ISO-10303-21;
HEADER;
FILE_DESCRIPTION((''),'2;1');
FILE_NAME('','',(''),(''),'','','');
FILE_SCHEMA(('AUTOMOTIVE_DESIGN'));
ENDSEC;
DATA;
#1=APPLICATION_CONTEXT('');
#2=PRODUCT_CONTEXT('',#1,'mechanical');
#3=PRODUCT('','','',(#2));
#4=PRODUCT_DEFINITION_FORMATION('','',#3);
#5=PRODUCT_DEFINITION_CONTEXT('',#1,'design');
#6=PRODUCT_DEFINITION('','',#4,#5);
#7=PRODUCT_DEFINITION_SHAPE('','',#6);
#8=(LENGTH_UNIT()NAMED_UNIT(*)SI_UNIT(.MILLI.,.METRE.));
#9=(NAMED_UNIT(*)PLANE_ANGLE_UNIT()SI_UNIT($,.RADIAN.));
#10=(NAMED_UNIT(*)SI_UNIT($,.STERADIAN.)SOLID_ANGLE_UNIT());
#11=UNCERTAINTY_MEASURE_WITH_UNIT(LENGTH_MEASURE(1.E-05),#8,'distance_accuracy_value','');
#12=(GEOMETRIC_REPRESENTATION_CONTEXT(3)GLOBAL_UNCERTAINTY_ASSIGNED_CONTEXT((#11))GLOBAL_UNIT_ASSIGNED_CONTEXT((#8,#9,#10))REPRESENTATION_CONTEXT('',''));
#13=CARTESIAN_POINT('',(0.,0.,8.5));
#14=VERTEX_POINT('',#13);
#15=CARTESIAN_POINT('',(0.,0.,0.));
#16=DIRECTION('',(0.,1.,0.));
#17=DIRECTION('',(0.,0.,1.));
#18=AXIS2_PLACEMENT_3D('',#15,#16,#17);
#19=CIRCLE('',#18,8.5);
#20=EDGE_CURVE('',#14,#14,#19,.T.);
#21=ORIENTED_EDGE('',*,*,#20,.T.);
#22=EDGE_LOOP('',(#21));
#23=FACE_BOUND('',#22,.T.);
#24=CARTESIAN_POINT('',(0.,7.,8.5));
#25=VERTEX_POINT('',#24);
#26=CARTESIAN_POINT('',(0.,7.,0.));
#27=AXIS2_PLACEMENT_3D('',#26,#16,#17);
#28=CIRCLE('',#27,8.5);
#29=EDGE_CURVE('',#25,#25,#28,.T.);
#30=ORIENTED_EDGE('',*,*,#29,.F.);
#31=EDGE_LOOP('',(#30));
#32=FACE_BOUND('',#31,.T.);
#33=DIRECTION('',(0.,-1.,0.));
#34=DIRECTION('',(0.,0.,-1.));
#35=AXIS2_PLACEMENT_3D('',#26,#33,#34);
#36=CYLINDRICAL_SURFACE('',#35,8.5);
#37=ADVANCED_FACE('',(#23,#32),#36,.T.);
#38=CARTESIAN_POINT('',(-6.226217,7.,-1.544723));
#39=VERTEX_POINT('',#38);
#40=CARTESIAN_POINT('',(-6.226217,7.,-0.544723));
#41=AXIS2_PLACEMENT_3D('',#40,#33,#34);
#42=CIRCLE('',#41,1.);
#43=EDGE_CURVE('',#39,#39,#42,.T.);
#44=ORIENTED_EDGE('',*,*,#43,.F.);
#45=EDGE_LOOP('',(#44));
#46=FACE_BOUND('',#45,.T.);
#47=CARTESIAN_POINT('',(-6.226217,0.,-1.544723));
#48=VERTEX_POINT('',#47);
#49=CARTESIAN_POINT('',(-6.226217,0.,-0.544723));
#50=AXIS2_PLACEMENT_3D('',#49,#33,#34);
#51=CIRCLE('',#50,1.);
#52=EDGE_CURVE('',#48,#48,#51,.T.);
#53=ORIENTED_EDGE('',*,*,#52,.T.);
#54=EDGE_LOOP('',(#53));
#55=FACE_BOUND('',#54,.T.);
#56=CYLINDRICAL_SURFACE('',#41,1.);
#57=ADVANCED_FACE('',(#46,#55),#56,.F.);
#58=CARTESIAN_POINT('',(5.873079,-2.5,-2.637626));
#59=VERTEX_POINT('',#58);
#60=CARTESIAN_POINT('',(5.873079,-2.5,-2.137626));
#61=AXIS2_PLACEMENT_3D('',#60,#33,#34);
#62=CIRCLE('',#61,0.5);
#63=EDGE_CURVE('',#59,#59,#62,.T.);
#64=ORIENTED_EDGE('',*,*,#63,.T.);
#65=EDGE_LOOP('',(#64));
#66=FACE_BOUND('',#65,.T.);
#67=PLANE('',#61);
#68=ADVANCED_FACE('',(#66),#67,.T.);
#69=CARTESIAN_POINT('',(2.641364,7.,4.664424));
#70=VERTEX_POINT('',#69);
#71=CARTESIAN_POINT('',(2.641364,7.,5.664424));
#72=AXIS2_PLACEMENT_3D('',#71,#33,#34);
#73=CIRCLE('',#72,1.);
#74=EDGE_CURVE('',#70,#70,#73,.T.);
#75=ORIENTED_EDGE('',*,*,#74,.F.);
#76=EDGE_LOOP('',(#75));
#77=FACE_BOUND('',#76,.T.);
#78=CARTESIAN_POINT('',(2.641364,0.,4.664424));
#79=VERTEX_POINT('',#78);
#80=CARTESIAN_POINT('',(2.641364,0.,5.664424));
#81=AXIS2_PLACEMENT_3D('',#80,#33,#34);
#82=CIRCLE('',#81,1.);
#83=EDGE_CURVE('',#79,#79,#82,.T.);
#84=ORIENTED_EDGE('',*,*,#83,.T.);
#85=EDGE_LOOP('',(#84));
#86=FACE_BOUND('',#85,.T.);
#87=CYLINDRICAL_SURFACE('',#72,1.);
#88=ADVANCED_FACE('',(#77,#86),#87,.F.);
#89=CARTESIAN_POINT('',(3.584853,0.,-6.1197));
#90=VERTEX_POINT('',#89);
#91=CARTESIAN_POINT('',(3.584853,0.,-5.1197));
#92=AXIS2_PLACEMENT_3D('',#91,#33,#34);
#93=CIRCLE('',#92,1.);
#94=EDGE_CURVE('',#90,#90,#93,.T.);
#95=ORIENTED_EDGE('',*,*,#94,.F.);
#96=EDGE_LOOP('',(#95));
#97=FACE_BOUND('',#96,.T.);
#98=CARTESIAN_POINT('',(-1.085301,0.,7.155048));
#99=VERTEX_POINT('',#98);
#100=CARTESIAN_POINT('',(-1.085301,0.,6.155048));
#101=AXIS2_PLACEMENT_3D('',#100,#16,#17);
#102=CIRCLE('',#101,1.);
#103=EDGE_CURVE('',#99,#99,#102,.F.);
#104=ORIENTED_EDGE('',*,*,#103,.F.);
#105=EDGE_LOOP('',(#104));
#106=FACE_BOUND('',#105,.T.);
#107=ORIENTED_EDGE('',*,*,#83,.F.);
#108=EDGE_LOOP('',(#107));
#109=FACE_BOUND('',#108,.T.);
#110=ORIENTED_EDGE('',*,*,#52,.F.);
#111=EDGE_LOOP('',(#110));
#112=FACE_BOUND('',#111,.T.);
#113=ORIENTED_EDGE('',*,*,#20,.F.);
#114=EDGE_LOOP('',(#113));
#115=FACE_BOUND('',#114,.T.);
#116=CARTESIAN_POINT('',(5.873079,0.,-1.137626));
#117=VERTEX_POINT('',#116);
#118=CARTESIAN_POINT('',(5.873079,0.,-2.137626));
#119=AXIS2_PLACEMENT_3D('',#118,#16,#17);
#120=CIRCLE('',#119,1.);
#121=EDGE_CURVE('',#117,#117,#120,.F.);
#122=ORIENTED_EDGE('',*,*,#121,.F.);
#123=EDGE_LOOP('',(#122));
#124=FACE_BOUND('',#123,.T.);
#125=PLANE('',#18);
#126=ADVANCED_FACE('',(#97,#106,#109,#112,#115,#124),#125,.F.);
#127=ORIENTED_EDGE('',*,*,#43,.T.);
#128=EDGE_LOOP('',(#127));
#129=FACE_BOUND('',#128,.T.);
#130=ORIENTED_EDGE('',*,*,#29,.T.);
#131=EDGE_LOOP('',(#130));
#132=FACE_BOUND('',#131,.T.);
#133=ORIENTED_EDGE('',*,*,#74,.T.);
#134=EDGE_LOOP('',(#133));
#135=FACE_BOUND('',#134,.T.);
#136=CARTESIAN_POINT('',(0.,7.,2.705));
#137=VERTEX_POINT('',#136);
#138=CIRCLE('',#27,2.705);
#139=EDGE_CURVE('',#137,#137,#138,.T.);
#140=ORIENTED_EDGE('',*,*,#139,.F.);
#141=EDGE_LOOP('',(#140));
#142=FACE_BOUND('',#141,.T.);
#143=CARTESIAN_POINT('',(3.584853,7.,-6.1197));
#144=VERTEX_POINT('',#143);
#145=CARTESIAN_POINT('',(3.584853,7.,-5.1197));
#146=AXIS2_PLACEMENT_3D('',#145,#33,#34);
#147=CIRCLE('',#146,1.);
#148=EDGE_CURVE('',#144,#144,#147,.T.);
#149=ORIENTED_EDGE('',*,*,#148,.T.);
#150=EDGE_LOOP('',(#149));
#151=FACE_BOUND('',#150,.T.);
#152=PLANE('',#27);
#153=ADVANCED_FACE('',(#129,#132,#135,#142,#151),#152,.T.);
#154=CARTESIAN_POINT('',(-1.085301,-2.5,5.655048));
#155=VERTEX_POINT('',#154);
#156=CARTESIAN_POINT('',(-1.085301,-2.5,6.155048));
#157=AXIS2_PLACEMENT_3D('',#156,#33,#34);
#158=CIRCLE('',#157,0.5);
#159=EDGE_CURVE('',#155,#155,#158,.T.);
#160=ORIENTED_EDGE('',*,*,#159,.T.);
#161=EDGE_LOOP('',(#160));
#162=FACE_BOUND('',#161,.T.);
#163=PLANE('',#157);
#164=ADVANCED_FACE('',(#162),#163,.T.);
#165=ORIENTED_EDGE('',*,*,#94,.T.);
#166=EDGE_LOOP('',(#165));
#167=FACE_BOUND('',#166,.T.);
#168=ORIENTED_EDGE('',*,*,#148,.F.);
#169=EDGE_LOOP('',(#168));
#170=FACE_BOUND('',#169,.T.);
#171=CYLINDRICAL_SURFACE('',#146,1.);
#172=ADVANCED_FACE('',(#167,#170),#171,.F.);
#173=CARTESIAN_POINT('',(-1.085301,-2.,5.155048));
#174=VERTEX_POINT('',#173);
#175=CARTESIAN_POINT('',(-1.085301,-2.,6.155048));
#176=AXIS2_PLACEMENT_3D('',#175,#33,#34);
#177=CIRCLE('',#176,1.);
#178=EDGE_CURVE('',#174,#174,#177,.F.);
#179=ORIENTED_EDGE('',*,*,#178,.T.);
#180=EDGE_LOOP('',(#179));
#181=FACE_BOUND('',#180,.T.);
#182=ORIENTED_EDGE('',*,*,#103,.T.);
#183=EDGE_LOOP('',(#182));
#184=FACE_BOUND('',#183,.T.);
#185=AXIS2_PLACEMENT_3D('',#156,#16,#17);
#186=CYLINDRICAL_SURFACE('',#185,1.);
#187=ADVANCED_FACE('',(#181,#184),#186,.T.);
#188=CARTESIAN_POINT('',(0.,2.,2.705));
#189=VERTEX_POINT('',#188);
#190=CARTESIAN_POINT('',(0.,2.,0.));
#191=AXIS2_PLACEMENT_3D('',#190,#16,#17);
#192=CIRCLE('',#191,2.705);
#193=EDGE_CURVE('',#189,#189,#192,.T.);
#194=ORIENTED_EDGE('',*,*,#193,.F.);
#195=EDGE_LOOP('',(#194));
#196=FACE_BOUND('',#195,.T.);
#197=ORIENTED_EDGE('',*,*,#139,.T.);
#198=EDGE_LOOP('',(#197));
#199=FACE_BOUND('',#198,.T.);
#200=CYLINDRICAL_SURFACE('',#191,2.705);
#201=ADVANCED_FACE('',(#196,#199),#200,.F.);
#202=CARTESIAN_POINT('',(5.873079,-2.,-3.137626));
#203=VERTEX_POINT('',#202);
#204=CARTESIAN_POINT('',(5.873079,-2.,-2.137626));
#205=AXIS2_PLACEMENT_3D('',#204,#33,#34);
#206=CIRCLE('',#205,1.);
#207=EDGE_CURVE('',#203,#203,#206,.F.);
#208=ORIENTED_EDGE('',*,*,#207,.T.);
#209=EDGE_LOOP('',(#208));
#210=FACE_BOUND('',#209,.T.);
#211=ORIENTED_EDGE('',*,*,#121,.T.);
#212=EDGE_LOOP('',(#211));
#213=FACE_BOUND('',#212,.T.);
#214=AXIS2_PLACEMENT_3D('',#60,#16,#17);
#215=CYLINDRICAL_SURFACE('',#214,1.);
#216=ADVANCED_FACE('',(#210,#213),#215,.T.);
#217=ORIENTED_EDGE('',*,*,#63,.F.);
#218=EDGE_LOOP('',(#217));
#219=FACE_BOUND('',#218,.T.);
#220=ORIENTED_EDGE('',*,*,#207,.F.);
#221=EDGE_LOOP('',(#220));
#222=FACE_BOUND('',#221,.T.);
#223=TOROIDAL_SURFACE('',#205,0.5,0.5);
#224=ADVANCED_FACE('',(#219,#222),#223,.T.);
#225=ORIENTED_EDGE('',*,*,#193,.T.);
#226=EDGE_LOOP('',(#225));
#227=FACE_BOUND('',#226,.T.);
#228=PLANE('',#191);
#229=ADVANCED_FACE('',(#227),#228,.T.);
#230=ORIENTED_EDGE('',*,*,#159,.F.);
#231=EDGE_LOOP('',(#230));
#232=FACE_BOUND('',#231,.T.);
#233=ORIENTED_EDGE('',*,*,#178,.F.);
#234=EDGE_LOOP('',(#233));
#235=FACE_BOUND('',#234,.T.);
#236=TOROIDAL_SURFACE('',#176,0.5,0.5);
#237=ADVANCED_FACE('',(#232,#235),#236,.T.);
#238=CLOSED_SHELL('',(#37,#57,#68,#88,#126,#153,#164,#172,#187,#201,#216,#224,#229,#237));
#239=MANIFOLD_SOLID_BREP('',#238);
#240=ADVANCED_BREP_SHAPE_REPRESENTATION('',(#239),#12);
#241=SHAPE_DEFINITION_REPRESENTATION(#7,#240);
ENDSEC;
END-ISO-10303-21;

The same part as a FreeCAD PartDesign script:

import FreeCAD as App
import Part
import Sketcher

V = App.Vector


def edges_at(feature, points):
    """Names of the edges that pass closest to the given points."""
    edges = feature.Shape.Edges
    near = lambda p: min(range(len(edges)), key=lambda i: edges[i].distToShape(Part.Vertex(*p))[0])
    return sorted({f"Edge{near(p) + 1}" for p in points})

doc = App.newDocument("Part")
params = doc.addObject("Spreadsheet::Sheet", "Params")
for row, (alias, value) in enumerate([
    ("sketch1_diameter", "17 mm"),
    ("pad1_length", "7 mm"),
    ("sketch2_diameter", "5.41 mm"),
    ("pocket1_length", "5 mm"),
    ("sketch3_diameter", "2 mm"),
    ("pad2_length", "2.5 mm"),
    ("sketch4_diameter", "2 mm"),
    ("fillet_radius", "0.5 mm"),
], start=1):
    params.set(f"A{row}", alias)
    params.set(f"B{row}", "=" + value)
    params.setAlias(f"B{row}", alias)

body = doc.addObject("PartDesign::Body", "Body")

# Sketch on XZ plane
sketch1 = body.newObject("Sketcher::SketchObject", "Sketch")
sketch1.AttachmentSupport = (doc.getObject("XZ_Plane"), [""])
sketch1.MapMode = "FlatFace"
sketch1.addGeometry(Part.Circle(V(0, 0, 0), V(0, 0, 1), 8), False)
sketch1.addConstraint([
    Sketcher.Constraint("Coincident", 0, 3, -1, 1),
    Sketcher.Constraint("Diameter", 0, 17.0),
])
sketch1.setExpression("Constraints[1]", "Params.sketch1_diameter")
pad1 = body.newObject("PartDesign::Pad", "Pad")
pad1.Profile = sketch1
pad1.setExpression("Length", "Params.pad1_length")
pad1.Reversed = True

# Sketch on XZ plane
sketch2 = body.newObject("Sketcher::SketchObject", "Sketch001")
sketch2.AttachmentSupport = (doc.getObject("XZ_Plane"), [""])
sketch2.MapMode = "FlatFace"
sketch2.AttachmentOffset = App.Placement(V(0, 0, -7), App.Rotation())
sketch2.addGeometry(Part.Circle(V(0, 0, 0), V(0, 0, 1), 2.7), False)
sketch2.addConstraint([
    Sketcher.Constraint("Coincident", 0, 3, -1, 1),
    Sketcher.Constraint("Diameter", 0, 5.41),
])
sketch2.setExpression("Constraints[1]", "Params.sketch2_diameter")
pocket1 = body.newObject("PartDesign::Pocket", "Pocket")
pocket1.Profile = sketch2
pocket1.setExpression("Length", "Params.pocket1_length")
pocket1.Reversed = True

# Sketch on XZ plane
sketch3 = body.newObject("Sketcher::SketchObject", "Sketch002")
sketch3.AttachmentSupport = (doc.getObject("XZ_Plane"), [""])
sketch3.MapMode = "FlatFace"
sketch3.addGeometry([
    Part.Circle(V(-1.1, 6.2, 0), V(0, 0, 1), 1),
    Part.Circle(V(5.9, -2.1, 0), V(0, 0, 1), 1),
], False)
sketch3.addConstraint([
    Sketcher.Constraint("Equal", 0, 1),
    Sketcher.Constraint("Diameter", 0, 2.0),
    Sketcher.Constraint("DistanceX", 0, 3, -1, 1, 1.085301),
    Sketcher.Constraint("DistanceY", -1, 1, 0, 3, 6.155048),
    Sketcher.Constraint("DistanceX", -1, 1, 1, 3, 5.873079),
    Sketcher.Constraint("DistanceY", 1, 3, -1, 1, 2.137626),
])
sketch3.setExpression("Constraints[1]", "Params.sketch3_diameter")
pad2 = body.newObject("PartDesign::Pad", "Pad001")
pad2.Profile = sketch3
pad2.setExpression("Length", "Params.pad2_length")

# Sketch on XZ plane
sketch4 = body.newObject("Sketcher::SketchObject", "Sketch003")
sketch4.AttachmentSupport = (doc.getObject("XZ_Plane"), [""])
sketch4.MapMode = "FlatFace"
sketch4.addGeometry([
    Part.Circle(V(-6.2, -0.5, 0), V(0, 0, 1), 1),
    Part.Circle(V(2.6, 5.7, 0), V(0, 0, 1), 1),
    Part.Circle(V(3.6, -5.1, 0), V(0, 0, 1), 1),
], False)
sketch4.addConstraint([
    Sketcher.Constraint("Equal", 0, 1),
    Sketcher.Constraint("Equal", 1, 2),
    Sketcher.Constraint("Diameter", 0, 2.0),
    Sketcher.Constraint("DistanceY", 2, 3, -1, 1, 5.1197),
    Sketcher.Constraint("DistanceX", 0, 3, 1, 3, 8.867581),
    Sketcher.Constraint("DistanceX", 0, 3, 2, 3, 9.81107),
    Sketcher.Constraint("DistanceX", 0, 3, -1, 1, 6.226217),
    Sketcher.Constraint("DistanceY", 0, 3, -1, 1, 0.544723),
    Sketcher.Constraint("DistanceY", -1, 1, 1, 3, 5.664424),
])
sketch4.setExpression("Constraints[2]", "Params.sketch4_diameter")
pocket2 = body.newObject("PartDesign::Pocket", "Pocket001")
pocket2.Profile = sketch4
pocket2.Type = "ThroughAll"
doc.recompute()

fillet = body.newObject("PartDesign::Fillet", "Fillet")
fillet.Base = (pocket2, edges_at(pocket2, [(-1.085, -2.5, 5.155), (5.873, -2.5, -3.138)]))
fillet.setExpression("Radius", "Params.fillet_radius")

doc.recompute()
